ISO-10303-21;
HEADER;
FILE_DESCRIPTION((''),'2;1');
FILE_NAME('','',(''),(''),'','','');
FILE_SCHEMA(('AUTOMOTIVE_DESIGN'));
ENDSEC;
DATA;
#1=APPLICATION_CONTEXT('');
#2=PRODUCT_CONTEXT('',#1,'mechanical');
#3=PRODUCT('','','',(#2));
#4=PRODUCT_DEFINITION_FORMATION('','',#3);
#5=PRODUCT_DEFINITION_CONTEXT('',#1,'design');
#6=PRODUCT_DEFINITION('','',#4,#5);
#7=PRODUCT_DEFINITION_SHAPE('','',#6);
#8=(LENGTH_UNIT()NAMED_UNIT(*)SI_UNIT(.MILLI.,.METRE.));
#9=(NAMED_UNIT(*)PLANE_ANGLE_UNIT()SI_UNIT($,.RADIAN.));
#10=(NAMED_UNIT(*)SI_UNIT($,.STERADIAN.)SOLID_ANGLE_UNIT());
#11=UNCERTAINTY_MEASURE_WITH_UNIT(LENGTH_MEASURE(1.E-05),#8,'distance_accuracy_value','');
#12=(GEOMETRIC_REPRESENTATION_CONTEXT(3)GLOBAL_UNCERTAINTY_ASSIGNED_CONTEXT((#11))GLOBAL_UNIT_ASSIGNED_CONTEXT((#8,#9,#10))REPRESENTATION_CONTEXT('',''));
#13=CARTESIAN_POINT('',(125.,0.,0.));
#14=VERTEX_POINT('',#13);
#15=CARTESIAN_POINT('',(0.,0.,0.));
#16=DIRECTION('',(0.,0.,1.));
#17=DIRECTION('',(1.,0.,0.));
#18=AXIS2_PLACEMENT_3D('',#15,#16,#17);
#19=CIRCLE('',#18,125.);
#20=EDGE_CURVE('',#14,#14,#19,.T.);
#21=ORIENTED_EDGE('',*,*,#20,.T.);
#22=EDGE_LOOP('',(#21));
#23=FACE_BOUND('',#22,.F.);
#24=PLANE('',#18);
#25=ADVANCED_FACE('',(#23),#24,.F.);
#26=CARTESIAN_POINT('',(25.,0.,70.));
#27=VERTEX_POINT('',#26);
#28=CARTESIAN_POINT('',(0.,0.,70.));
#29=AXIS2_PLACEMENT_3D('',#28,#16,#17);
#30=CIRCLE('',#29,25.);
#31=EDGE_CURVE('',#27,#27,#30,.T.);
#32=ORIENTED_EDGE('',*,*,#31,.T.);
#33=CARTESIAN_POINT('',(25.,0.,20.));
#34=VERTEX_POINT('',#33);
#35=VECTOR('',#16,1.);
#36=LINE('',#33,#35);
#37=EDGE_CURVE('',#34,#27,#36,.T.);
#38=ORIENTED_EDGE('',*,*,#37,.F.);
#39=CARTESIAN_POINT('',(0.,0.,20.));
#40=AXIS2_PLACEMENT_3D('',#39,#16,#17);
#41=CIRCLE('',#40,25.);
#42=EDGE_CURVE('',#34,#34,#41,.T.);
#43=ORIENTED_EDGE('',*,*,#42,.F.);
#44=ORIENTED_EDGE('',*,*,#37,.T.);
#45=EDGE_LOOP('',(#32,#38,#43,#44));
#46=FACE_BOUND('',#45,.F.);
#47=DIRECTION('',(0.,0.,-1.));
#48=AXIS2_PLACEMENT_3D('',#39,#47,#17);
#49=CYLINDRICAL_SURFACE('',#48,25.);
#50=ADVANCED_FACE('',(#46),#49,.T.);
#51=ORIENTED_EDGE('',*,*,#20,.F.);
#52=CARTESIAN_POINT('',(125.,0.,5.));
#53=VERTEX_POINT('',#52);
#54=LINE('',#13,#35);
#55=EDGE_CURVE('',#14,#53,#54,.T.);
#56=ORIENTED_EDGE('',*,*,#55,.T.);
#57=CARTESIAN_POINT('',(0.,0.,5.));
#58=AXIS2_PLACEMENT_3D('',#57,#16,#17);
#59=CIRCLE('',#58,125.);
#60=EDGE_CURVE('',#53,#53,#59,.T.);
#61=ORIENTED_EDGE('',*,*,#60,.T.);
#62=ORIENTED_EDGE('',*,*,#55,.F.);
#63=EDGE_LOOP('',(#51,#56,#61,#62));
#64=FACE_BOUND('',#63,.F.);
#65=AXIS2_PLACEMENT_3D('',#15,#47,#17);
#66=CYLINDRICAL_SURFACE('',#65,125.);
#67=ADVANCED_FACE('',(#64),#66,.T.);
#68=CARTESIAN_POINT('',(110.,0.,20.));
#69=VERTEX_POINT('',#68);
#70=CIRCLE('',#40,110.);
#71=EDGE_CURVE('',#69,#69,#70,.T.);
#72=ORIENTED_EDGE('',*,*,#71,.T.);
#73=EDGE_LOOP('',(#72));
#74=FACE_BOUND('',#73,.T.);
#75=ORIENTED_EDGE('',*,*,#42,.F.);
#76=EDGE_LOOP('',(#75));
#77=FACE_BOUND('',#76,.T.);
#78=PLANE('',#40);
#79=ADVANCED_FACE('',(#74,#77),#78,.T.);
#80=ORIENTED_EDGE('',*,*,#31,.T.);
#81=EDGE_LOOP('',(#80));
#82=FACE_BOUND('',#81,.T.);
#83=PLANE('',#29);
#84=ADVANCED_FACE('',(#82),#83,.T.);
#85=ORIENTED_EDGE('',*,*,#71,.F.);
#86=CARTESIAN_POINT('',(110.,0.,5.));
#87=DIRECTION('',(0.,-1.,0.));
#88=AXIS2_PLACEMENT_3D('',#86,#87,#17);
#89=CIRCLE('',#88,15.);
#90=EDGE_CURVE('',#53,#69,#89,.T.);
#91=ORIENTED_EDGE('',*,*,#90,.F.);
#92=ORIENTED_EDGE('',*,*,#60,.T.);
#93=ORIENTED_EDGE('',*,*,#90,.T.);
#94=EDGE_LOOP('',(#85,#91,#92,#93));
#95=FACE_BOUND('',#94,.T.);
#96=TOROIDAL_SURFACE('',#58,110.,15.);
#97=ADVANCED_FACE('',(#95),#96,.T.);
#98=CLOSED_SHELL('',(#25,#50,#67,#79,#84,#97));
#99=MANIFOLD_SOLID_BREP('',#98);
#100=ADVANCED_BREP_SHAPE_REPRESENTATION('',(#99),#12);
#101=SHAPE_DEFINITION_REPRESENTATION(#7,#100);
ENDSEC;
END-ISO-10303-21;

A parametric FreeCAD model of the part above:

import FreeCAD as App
import Part
import Sketcher
from FreeCAD import Vector
Q = App.Units.Quantity


def edges_at(feature, points):
    """Names of the edges that pass closest to the given points."""
    edges = feature.Shape.Edges
    near = lambda p: min(range(len(edges)), key=lambda i: edges[i].distToShape(Part.Vertex(*p))[0])
    return sorted({f"Edge{near(p) + 1}" for p in points})

doc = App.newDocument("Part")
body = doc.addObject("PartDesign::Body", "Body")

sketch1 = doc.addObject("Sketcher::SketchObject", "Sketch")
body.addObject(sketch1)
sketch1.AttachmentSupport = (doc.XY_Plane, [""])
sketch1.MapMode = "FlatFace"
sketch1.addGeometry(Part.Circle(Vector(0, 0, 0), Vector(0, 0, 1), 125), False)
sketch1.addConstraint([
    Sketcher.Constraint("Coincident", 0, 3, -1, 1),
    Sketcher.Constraint("Diameter", 0, Q("250 mm")),
])
pad1 = doc.addObject("PartDesign::Pad", "Pad")
body.addObject(pad1)
pad1.Profile = sketch1
pad1.Length = 20

sketch2 = doc.addObject("Sketcher::SketchObject", "Sketch001")
body.addObject(sketch2)
sketch2.AttachmentSupport = (doc.XY_Plane, [""])
sketch2.MapMode = "FlatFace"
sketch2.AttachmentOffset = App.Placement(Vector(0, 0, 20), App.Rotation())
sketch2.addGeometry(Part.Circle(Vector(0, 0, 0), Vector(0, 0, 1), 25), False)
sketch2.addConstraint([
    Sketcher.Constraint("Coincident", 0, 3, -1, 1),
    Sketcher.Constraint("Diameter", 0, Q("50 mm")),
])
pad2 = doc.addObject("PartDesign::Pad", "Pad001")
body.addObject(pad2)
pad2.Profile = sketch2
pad2.Length = 50
doc.recompute()

fillet = doc.addObject("PartDesign::Fillet", "Fillet")
body.addObject(fillet)
fillet.Base = (pad2, edges_at(pad2, [(-125, 0, 20)]))
fillet.Radius = 15

doc.recompute()
